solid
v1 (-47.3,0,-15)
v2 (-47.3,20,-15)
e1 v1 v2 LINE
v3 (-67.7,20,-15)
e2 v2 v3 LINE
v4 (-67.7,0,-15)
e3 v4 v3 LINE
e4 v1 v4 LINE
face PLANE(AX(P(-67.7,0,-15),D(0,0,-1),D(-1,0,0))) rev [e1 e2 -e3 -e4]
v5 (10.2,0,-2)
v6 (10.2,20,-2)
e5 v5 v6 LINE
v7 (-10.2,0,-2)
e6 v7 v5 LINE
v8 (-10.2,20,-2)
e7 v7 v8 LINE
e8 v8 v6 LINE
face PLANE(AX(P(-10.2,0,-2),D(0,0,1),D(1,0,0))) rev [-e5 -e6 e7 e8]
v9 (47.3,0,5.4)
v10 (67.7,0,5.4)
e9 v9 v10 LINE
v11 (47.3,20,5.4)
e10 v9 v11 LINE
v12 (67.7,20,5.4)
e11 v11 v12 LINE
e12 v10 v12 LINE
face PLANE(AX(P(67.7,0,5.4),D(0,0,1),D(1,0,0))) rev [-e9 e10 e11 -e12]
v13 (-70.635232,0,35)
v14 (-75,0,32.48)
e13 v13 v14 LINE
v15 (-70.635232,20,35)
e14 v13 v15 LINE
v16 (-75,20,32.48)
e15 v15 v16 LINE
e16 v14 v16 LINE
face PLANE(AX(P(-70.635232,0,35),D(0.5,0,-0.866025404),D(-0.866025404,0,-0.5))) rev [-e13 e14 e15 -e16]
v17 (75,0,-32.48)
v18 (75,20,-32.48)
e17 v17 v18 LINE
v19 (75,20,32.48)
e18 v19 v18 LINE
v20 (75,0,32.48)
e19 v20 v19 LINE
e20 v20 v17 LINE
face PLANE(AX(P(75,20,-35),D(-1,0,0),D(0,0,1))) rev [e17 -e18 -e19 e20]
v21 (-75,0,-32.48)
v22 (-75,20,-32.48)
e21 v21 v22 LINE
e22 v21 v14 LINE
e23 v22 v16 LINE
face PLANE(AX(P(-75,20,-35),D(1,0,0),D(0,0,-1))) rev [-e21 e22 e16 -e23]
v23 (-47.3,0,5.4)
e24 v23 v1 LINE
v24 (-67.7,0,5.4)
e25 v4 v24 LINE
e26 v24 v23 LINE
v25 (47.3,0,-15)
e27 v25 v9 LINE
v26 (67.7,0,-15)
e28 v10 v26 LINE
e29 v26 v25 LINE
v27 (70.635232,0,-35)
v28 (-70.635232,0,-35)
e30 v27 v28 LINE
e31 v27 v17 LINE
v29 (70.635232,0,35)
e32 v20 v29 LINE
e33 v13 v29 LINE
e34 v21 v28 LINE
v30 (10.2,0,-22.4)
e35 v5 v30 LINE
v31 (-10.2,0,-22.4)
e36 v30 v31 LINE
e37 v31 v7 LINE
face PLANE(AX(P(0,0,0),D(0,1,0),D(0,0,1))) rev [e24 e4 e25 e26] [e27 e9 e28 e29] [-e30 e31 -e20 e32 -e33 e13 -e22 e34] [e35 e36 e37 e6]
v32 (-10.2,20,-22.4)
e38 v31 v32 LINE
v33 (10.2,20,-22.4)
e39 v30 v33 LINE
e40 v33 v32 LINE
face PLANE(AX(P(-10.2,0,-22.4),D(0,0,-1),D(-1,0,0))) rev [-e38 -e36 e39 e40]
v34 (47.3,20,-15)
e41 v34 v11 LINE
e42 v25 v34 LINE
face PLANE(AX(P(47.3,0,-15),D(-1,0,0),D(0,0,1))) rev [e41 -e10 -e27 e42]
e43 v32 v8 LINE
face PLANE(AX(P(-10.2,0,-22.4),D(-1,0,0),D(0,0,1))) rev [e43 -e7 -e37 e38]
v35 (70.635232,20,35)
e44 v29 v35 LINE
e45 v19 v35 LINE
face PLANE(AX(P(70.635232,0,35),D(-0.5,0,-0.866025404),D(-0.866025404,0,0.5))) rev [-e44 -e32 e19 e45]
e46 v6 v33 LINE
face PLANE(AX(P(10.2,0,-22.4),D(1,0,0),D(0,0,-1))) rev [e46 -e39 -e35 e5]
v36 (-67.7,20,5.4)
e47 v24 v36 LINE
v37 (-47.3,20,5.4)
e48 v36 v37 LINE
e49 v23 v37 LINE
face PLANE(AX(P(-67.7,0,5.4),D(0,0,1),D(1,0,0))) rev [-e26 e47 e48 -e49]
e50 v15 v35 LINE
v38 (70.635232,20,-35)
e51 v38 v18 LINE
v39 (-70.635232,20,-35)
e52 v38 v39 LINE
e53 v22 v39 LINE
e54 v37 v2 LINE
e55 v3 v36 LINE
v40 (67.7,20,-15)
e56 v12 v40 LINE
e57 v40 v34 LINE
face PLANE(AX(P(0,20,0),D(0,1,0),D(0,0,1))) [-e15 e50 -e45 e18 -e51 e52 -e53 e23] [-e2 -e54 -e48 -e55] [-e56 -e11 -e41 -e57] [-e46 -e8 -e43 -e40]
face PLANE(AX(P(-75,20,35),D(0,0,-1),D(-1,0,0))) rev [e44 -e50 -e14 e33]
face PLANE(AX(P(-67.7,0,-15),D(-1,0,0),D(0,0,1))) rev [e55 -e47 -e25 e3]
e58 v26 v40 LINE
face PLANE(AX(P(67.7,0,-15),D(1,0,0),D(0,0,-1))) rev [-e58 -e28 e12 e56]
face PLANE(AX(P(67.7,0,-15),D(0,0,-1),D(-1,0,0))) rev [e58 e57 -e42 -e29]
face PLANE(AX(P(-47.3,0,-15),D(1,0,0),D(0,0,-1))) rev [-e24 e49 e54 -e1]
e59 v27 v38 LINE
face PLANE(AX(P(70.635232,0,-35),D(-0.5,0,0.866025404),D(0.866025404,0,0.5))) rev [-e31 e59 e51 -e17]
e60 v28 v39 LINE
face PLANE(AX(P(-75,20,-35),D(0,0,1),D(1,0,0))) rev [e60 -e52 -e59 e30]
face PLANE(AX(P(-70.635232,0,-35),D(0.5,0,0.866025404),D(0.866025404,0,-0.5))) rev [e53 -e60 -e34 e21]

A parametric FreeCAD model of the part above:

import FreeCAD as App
import Part
import Sketcher
from FreeCAD import Vector
Q = App.Units.Quantity

doc = App.newDocument("Part")
body = doc.addObject("PartDesign::Body", "Body")

# Sketch on XZ plane
sketch1 = doc.addObject("Sketcher::SketchObject", "Sketch")
body.addObject(sketch1)
sketch1.AttachmentSupport = (doc.XZ_Plane, [""])
sketch1.MapMode = "FlatFace"
sketch1.addGeometry(Part.LineSegment(Vector(-75, -35, 0), Vector(-75, 35, 0)), False)
sketch1.addGeometry(Part.LineSegment(Vector(-75, 35, 0), Vector(75, 35, 0)), False)
sketch1.addGeometry(Part.LineSegment(Vector(75, 35, 0), Vector(75, -35, 0)), False)
sketch1.addGeometry(Part.LineSegment(Vector(75, -35, 0), Vector(-75, -35, 0)), False)
sketch1.addConstraint(Sketcher.Constraint("Coincident", 0, 2, 1, 1))
sketch1.addConstraint(Sketcher.Constraint("Coincident", 1, 2, 2, 1))
sketch1.addConstraint(Sketcher.Constraint("Coincident", 2, 2, 3, 1))
sketch1.addConstraint(Sketcher.Constraint("Coincident", 3, 2, 0, 1))
sketch1.addConstraint(Sketcher.Constraint("Vertical", 0))
sketch1.addConstraint(Sketcher.Constraint("Horizontal", 1))
sketch1.addConstraint(Sketcher.Constraint("Vertical", 2))
sketch1.addConstraint(Sketcher.Constraint("Horizontal", 3))
sketch1.addConstraint(Sketcher.Constraint("Symmetric", 0, 2, 2, 2, -1, 1))
sketch1.addConstraint(Sketcher.Constraint("DistanceX", 1, 1, 1, 2, Q("150 mm")))
sketch1.addConstraint(Sketcher.Constraint("DistanceY", 0, 1, 0, 2, Q("70 mm")))
pad1 = doc.addObject("PartDesign::Pad", "Pad")
body.addObject(pad1)
pad1.Profile = sketch1
pad1.Length = 20
pad1.Reversed = True

# Sketch on XZ plane
sketch2 = doc.addObject("Sketcher::SketchObject", "Sketch001")
body.addObject(sketch2)
sketch2.AttachmentSupport = (doc.XZ_Plane, [""])
sketch2.MapMode = "FlatFace"
sketch2.AttachmentOffset = App.Placement(Vector(0, 0, -20), App.Rotation())
sketch2.addGeometry(Part.LineSegment(Vector(-10, -22, 0), Vector(-10, -2, 0)), False)
sketch2.addGeometry(Part.LineSegment(Vector(-10, -2, 0), Vector(10, -2, 0)), False)
sketch2.addGeometry(Part.LineSegment(Vector(10, -2, 0), Vector(10, -22, 0)), False)
sketch2.addGeometry(Part.LineSegment(Vector(10, -22, 0), Vector(-10, -22, 0)), False)
sketch2.addConstraint(Sketcher.Constraint("Coincident", 0, 2, 1, 1))
sketch2.addConstraint(Sketcher.Constraint("Coincident", 1, 2, 2, 1))
sketch2.addConstraint(Sketcher.Constraint("Coincident", 2, 2, 3, 1))
sketch2.addConstraint(Sketcher.Constraint("Coincident", 3, 2, 0, 1))
sketch2.addConstraint(Sketcher.Constraint("Vertical", 0))
sketch2.addConstraint(Sketcher.Constraint("Horizontal", 1))
sketch2.addConstraint(Sketcher.Constraint("Vertical", 2))
sketch2.addConstraint(Sketcher.Constraint("Horizontal", 3))
sketch2.addConstraint(Sketcher.Constraint("Equal", 3, 0))
sketch2.addConstraint(Sketcher.Constraint("DistanceX", 1, 1, 1, 2, Q("20.4 mm")))
sketch2.addConstraint(Sketcher.Constraint("DistanceY", 0, 2, -1, 1, Q("2 mm")))
sketch2.addConstraint(Sketcher.Constraint("DistanceX", 0, 2, -1, 1, Q("10.2 mm")))
pocket1 = doc.addObject("PartDesign::Pocket", "Pocket")
body.addObject(pocket1)
pocket1.Profile = sketch2
pocket1.Length = 20
pocket1.Reversed = True

# Sketch on XZ plane
sketch3 = doc.addObject("Sketcher::SketchObject", "Sketch002")
body.addObject(sketch3)
sketch3.AttachmentSupport = (doc.XZ_Plane, [""])
sketch3.MapMode = "FlatFace"
sketch3.AttachmentOffset = App.Placement(Vector(0, 0, -20), App.Rotation())
sketch3.addGeometry(Part.LineSegment(Vector(-68, -15, 0), Vector(-68, 5, 0)), False)
sketch3.addGeometry(Part.LineSegment(Vector(-68, 5, 0), Vector(-47, 5, 0)), False)
sketch3.addGeometry(Part.LineSegment(Vector(-47, 5, 0), Vector(-47, -15, 0)), False)
sketch3.addGeometry(Part.LineSegment(Vector(-47, -15, 0), Vector(-68, -15, 0)), False)
sketch3.addGeometry(Part.LineSegment(Vector(47, -15, 0), Vector(47, 5, 0)), False)
sketch3.addGeometry(Part.LineSegment(Vector(47, 5, 0), Vector(68, 5, 0)), False)
sketch3.addGeometry(Part.LineSegment(Vector(68, 5, 0), Vector(68, -15, 0)), False)
sketch3.addGeometry(Part.LineSegment(Vector(68, -15, 0), Vector(47, -15, 0)), False)
sketch3.addConstraint(Sketcher.Constraint("Coincident", 0, 2, 1, 1))
sketch3.addConstraint(Sketcher.Constraint("Coincident", 1, 2, 2, 1))
sketch3.addConstraint(Sketcher.Constraint("Coincident", 2, 2, 3, 1))
sketch3.addConstraint(Sketcher.Constraint("Coincident", 3, 2, 0, 1))
sketch3.addConstraint(Sketcher.Constraint("Coincident", 4, 2, 5, 1))
sketch3.addConstraint(Sketcher.Constraint("Coincident", 5, 2, 6, 1))
sketch3.addConstraint(Sketcher.Constraint("Coincident", 6, 2, 7, 1))
sketch3.addConstraint(Sketcher.Constraint("Coincident", 7, 2, 4, 1))
sketch3.addConstraint(Sketcher.Constraint("Vertical", 0))
sketch3.addConstraint(Sketcher.Constraint("Horizontal", 1))
sketch3.addConstraint(Sketcher.Constraint("Vertical", 2))
sketch3.addConstraint(Sketcher.Constraint("Horizontal", 3))
sketch3.addConstraint(Sketcher.Constraint("Vertical", 4))
sketch3.addConstraint(Sketcher.Constraint("Horizontal", 5))
sketch3.addConstraint(Sketcher.Constraint("Vertical", 6))
sketch3.addConstraint(Sketcher.Constraint("Horizontal", 7))
sketch3.addConstraint(Sketcher.Constraint("Symmetric", 1, 2, 4, 2, -2))
sketch3.addConstraint(Sketcher.Constraint("Symmetric", 3, 2, 6, 2, -2))
sketch3.addConstraint(Sketcher.Constraint("Equal", 7, 0))
sketch3.addConstraint(Sketcher.Constraint("DistanceX", 1, 1, 1, 2, Q("20.4 mm")))
sketch3.addConstraint(Sketcher.Constraint("DistanceY", 2, 2, -1, 1, Q("15 mm")))
sketch3.addConstraint(Sketcher.Constraint("DistanceX", 0, 2, 4, 2, Q("115 mm")))
pocket2 = doc.addObject("PartDesign::Pocket", "Pocket001")
body.addObject(pocket2)
pocket2.Profile = sketch3
pocket2.Length = 20
pocket2.Reversed = True

# Sketch on XZ plane
sketch4 = doc.addObject("Sketcher::SketchObject", "Sketch003")
body.addObject(sketch4)
sketch4.AttachmentSupport = (doc.XZ_Plane, [""])
sketch4.MapMode = "FlatFace"
sketch4.AttachmentOffset = App.Placement(Vector(0, 0, -20), App.Rotation())
sketch4.addGeometry(Part.LineSegment(Vector(-70.6, 35, 0), Vector(-75, 32.5, 0)), False)
sketch4.addGeometry(Part.LineSegment(Vector(-75, 32.5, 0), Vector(-75, 35, 0)), False)
sketch4.addGeometry(Part.LineSegment(Vector(-75, 35, 0), Vector(-70.6, 35, 0)), False)
sketch4.addGeometry(Part.LineSegment(Vector(-70.6, -35, 0), Vector(-75, -35, 0)), False)
sketch4.addGeometry(Part.LineSegment(Vector(-75, -35, 0), Vector(-75, -32.5, 0)), False)
sketch4.addGeometry(Part.LineSegment(Vector(-75, -32.5, 0), Vector(-70.6, -35, 0)), False)
sketch4.addGeometry(Part.LineSegment(Vector(70.6, 35, 0), Vector(75, 35, 0)), False)
sketch4.addGeometry(Part.LineSegment(Vector(75, 35, 0), Vector(75, 32.5, 0)), False)
sketch4.addGeometry(Part.LineSegment(Vector(75, 32.5, 0), Vector(70.6, 35, 0)), False)
sketch4.addGeometry(Part.LineSegment(Vector(70.6, -35, 0), Vector(75, -32.5, 0)), False)
sketch4.addGeometry(Part.LineSegment(Vector(75, -32.5, 0), Vector(75, -35, 0)), False)
sketch4.addGeometry(Part.LineSegment(Vector(75, -35, 0), Vector(70.6, -35, 0)), False)
sketch4.addConstraint(Sketcher.Constraint("Coincident", 0, 2, 1, 1))
sketch4.addConstraint(Sketcher.Constraint("Coincident", 1, 2, 2, 1))
sketch4.addConstraint(Sketcher.Constraint("Coincident", 2, 2, 0, 1))
sketch4.addConstraint(Sketcher.Constraint("Coincident", 3, 2, 4, 1))
sketch4.addConstraint(Sketcher.Constraint("Coincident", 4, 2, 5, 1))
sketch4.addConstraint(Sketcher.Constraint("Coincident", 5, 2, 3, 1))
sketch4.addConstraint(Sketcher.Constraint("Coincident", 6, 2, 7, 1))
sketch4.addConstraint(Sketcher.Constraint("Coincident", 7, 2, 8, 1))
sketch4.addConstraint(Sketcher.Constraint("Coincident", 8, 2, 6, 1))
sketch4.addConstraint(Sketcher.Constraint("Coincident", 9, 2, 10, 1))
sketch4.addConstraint(Sketcher.Constraint("Coincident", 10, 2, 11, 1))
sketch4.addConstraint(Sketcher.Constraint("Coincident", 11, 2, 9, 1))
sketch4.addConstraint(Sketcher.Constraint("Vertical", 1))
sketch4.addConstraint(Sketcher.Constraint("Horizontal", 2))
sketch4.addConstraint(Sketcher.Constraint("Horizontal", 3))
sketch4.addConstraint(Sketcher.Constraint("Vertical", 4))
sketch4.addConstraint(Sketcher.Constraint("Horizontal", 6))
sketch4.addConstraint(Sketcher.Constraint("Vertical", 7))
sketch4.addConstraint(Sketcher.Constraint("Vertical", 10))
sketch4.addConstraint(Sketcher.Constraint("Horizontal", 11))
sketch4.addConstraint(Sketcher.Constraint("Symmetric", 3, 2, 6, 2, -1, 1))
sketch4.addConstraint(Sketcher.Constraint("Symmetric", 0, 2, 9, 2, -1, 1))
sketch4.addConstraint(Sketcher.Constraint("Symmetric", 2, 2, 11, 2, -1, 1))
sketch4.addConstraint(Sketcher.Constraint("Symmetric", 1, 2, 6, 2, -2))
sketch4.addConstraint(Sketcher.Constraint("Parallel", 5, 8))
sketch4.addConstraint(Sketcher.Constraint("Horizontal", 0, 2, 7, 2))
sketch4.addConstraint(Sketcher.Constraint("Horizontal", 4, 2, 9, 2))
sketch4.addConstraint(Sketcher.Constraint("Vertical", 2, 2, 5, 2))
sketch4.addConstraint(Sketcher.Constraint("Angle", 0, Q("-150 deg")))
sketch4.addConstraint(Sketcher.Constraint("DistanceX", 0, 2, -1, 1, Q("75 mm")))
sketch4.addConstraint(Sketcher.Constraint("DistanceY", -1, 1, 1, 2, Q("35 mm")))
sketch4.addConstraint(Sketcher.Constraint("DistanceY", 1, 1, 1, 2, Q("2.52 mm")))
pocket3 = doc.addObject("PartDesign::Pocket", "Pocket002")
body.addObject(pocket3)
pocket3.Profile = sketch4
pocket3.Length = 20
pocket3.Reversed = True

doc.recompute()
